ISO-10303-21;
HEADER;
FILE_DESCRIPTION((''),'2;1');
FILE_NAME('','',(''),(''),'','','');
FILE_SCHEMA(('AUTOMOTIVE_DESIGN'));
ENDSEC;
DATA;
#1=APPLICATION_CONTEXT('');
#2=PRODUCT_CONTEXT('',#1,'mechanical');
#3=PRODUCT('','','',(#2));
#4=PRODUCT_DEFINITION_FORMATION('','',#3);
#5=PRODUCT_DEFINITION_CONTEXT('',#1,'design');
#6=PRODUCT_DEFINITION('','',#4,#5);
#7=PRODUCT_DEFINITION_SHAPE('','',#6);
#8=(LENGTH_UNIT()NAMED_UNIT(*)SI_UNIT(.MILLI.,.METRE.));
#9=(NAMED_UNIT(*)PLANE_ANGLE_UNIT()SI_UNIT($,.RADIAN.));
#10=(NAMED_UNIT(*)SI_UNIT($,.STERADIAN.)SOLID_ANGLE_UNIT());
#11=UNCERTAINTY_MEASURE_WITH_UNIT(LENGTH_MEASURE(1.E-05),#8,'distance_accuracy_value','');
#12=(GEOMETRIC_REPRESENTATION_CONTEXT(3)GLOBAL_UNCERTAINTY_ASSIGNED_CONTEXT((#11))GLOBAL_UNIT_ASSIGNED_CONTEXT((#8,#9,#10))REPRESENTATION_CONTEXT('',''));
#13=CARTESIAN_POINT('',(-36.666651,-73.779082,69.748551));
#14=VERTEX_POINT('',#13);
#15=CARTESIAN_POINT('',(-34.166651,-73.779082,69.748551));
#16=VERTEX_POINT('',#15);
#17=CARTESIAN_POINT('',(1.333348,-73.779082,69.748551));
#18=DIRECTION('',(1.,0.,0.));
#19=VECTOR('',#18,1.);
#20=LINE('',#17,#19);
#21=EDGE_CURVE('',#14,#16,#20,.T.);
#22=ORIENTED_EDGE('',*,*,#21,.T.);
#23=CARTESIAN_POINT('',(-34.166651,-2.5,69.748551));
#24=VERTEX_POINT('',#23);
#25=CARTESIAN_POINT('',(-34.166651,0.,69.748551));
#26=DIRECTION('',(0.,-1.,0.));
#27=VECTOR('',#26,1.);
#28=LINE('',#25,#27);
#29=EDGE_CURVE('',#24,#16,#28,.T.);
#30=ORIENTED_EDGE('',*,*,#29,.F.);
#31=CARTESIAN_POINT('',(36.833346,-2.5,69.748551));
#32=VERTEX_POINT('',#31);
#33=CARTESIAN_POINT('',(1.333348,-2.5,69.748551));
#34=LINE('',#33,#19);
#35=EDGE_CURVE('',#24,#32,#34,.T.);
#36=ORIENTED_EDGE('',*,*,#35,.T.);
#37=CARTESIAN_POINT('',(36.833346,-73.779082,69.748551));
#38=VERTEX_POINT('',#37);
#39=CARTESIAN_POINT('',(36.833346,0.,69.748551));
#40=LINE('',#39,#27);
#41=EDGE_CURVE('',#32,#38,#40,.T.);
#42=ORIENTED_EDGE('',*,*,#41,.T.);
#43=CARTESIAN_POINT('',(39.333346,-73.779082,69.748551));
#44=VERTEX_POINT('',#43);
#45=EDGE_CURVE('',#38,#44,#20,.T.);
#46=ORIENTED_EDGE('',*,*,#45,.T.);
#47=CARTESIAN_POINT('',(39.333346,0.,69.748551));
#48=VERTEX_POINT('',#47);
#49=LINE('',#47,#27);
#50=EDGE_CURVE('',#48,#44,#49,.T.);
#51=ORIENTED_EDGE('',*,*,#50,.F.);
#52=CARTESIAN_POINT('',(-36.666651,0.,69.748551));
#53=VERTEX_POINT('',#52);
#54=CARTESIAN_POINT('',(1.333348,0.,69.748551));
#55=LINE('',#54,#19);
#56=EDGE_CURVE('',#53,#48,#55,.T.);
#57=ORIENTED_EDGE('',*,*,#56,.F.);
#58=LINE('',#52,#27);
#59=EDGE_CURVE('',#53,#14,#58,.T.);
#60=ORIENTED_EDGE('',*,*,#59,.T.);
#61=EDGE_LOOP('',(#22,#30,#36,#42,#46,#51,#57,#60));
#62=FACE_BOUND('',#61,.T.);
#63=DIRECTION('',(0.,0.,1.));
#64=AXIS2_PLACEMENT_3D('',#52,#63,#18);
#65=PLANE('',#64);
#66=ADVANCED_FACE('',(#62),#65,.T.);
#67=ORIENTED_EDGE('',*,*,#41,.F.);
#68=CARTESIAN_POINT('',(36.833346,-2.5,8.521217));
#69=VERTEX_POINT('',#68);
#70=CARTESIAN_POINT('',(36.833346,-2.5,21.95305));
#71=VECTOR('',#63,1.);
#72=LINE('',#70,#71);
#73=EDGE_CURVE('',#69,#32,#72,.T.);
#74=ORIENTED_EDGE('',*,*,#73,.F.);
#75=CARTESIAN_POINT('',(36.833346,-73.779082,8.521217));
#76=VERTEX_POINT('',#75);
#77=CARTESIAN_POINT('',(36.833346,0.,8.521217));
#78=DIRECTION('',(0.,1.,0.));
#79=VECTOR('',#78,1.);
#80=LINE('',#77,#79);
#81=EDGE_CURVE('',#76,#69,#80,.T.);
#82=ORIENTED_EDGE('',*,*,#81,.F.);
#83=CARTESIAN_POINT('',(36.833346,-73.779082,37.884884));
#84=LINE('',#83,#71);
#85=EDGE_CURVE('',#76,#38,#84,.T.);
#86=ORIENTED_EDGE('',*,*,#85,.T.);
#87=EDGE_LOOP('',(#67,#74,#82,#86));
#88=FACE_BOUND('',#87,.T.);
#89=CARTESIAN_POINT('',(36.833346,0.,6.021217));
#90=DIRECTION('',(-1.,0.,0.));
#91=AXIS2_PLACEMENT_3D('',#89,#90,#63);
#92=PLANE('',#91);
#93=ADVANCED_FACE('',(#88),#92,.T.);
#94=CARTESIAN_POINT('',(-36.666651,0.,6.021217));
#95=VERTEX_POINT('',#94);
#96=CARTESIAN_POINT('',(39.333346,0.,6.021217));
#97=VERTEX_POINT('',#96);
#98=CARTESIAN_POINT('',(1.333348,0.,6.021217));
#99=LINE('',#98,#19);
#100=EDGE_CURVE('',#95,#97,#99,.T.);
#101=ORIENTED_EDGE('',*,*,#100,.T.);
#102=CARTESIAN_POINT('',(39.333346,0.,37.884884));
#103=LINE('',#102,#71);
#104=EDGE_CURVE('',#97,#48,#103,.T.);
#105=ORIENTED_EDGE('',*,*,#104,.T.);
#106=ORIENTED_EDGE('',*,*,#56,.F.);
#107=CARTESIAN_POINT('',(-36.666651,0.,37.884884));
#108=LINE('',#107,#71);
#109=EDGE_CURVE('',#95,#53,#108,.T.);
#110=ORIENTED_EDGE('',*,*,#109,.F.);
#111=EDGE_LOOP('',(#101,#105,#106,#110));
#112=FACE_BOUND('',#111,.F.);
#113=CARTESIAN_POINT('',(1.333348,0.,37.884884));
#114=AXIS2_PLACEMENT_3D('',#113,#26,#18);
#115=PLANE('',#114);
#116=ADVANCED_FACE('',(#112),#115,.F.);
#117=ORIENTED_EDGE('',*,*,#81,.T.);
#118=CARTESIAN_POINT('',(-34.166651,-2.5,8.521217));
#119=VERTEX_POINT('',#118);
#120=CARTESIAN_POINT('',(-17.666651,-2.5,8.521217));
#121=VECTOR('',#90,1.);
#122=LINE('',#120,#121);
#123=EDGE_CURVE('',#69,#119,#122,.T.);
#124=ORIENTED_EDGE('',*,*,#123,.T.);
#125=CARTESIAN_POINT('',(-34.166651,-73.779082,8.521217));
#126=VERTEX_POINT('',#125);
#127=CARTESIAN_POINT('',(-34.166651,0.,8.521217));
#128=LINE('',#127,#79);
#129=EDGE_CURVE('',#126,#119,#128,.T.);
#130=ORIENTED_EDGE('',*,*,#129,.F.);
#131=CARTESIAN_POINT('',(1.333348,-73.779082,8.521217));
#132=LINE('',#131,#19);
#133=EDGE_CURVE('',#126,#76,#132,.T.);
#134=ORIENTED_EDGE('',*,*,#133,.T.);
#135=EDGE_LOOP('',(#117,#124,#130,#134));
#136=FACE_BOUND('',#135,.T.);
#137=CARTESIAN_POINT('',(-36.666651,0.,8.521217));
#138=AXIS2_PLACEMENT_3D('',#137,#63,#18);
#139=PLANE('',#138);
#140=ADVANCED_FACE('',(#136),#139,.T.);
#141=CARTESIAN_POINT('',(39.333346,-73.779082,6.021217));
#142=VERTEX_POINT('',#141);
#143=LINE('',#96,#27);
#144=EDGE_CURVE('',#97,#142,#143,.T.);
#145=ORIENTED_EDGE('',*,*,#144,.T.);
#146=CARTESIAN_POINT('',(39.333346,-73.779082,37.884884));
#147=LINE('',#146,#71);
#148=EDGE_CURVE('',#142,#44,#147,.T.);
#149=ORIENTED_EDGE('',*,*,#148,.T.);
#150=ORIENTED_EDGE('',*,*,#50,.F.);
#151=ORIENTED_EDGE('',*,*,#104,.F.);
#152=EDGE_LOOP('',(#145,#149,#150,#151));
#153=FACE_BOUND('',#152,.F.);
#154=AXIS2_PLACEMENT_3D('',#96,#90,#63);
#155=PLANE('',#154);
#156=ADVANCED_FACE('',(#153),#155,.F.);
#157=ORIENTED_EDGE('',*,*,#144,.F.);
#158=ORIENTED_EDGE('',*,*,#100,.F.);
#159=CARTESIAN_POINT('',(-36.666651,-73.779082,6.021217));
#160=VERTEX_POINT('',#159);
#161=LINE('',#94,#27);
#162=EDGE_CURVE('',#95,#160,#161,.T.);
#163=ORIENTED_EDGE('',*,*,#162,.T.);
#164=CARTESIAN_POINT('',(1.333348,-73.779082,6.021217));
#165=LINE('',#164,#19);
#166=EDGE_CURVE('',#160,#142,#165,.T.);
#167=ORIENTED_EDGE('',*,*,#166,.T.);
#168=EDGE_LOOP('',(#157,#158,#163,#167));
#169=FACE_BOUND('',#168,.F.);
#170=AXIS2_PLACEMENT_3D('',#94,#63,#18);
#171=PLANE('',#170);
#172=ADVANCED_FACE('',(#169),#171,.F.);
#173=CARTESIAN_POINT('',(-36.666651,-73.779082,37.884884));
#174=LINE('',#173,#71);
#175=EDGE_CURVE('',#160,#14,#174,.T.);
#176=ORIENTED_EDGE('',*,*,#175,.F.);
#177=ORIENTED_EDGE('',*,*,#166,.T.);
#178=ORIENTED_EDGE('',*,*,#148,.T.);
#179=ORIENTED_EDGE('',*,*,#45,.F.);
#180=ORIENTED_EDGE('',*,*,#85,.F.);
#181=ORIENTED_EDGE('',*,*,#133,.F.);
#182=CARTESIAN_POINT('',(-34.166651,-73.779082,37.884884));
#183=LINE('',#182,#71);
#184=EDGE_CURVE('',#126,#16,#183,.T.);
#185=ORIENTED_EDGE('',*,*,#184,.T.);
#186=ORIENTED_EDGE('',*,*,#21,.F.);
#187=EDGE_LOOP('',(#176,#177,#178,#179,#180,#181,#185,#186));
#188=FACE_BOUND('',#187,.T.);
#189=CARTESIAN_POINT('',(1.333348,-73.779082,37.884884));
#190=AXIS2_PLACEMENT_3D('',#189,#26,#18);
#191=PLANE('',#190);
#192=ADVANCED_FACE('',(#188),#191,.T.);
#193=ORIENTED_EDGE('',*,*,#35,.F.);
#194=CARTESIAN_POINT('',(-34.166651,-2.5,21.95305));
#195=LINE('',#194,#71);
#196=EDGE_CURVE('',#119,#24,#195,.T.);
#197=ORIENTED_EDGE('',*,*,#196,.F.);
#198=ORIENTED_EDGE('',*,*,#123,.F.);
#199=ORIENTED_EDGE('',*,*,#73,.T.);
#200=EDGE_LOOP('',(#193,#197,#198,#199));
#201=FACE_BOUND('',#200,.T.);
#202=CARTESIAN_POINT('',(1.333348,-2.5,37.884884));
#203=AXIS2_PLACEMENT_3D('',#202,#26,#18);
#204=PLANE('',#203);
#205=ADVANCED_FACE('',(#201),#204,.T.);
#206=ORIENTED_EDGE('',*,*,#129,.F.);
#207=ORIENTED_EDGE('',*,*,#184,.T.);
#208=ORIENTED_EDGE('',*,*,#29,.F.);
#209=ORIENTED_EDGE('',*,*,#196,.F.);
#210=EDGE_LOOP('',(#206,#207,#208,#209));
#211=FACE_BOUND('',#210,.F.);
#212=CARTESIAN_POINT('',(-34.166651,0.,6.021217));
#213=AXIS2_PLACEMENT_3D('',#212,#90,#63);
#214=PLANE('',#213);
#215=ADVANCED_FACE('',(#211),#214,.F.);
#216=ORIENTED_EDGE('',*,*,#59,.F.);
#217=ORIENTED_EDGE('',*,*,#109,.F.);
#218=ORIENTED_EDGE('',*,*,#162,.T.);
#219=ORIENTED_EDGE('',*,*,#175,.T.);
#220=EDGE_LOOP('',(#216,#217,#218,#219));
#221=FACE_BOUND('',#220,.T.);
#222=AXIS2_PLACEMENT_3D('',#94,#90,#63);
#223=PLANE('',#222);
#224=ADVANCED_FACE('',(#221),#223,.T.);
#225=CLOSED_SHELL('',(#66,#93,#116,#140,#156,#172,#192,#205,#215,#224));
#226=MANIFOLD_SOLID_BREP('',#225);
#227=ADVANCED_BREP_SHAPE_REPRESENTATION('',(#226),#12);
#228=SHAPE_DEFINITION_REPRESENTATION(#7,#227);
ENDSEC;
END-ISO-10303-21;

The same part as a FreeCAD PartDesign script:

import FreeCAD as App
import Part
import Sketcher
Q = App.Units.Quantity


def faces_at(feature, points):
    """Names of the faces that lie closest to the given points."""
    faces = feature.Shape.Faces
    near = lambda p: min(range(len(faces)), key=lambda i: faces[i].distToShape(Part.Vertex(*p))[0])
    return sorted({f"Face{near(p) + 1}" for p in points})

doc = App.newDocument("Part")
body = doc.addObject("PartDesign::Body", "Body")

# Sketch on XZ plane
sketch1 = body.newObject("Sketcher::SketchObject", "Sketch")
sketch1.AttachmentSupport = (doc.getObject("XZ_Plane"), [""])
sketch1.MapMode = "FlatFace"
sketch1.addGeometry(Part.LineSegment(App.Vector(-37, 70, 0), App.Vector(-37, 6, 0)), False)
sketch1.addGeometry(Part.LineSegment(App.Vector(-37, 6, 0), App.Vector(39, 6, 0)), False)
sketch1.addGeometry(Part.LineSegment(App.Vector(39, 6, 0), App.Vector(39, 70, 0)), False)
sketch1.addGeometry(Part.LineSegment(App.Vector(39, 70, 0), App.Vector(-37, 70, 0)), False)
sketch1.addConstraint(Sketcher.Constraint("Coincident", 0, 2, 1, 1))
sketch1.addConstraint(Sketcher.Constraint("Coincident", 1, 2, 2, 1))
sketch1.addConstraint(Sketcher.Constraint("Coincident", 2, 2, 3, 1))
sketch1.addConstraint(Sketcher.Constraint("Coincident", 3, 2, 0, 1))
sketch1.addConstraint(Sketcher.Constraint("Vertical", 0))
sketch1.addConstraint(Sketcher.Constraint("Horizontal", 1))
sketch1.addConstraint(Sketcher.Constraint("Vertical", 2))
sketch1.addConstraint(Sketcher.Constraint("Horizontal", 3))
sketch1.addConstraint(Sketcher.Constraint("DistanceX", 1, 1, 1, 2, Q("75.999997 mm")))
sketch1.addConstraint(Sketcher.Constraint("DistanceY", 0, 2, 0, 1, Q("63.727334 mm")))
sketch1.addConstraint(Sketcher.Constraint("DistanceX", 0, 2, -1, 1, Q("36.666651 mm")))
sketch1.addConstraint(Sketcher.Constraint("DistanceY", -1, 1, 2, 2, Q("69.748551 mm")))
pad1 = body.newObject("PartDesign::Pad", "Pad")
pad1.Profile = sketch1
pad1.Length = 73.779082
doc.recompute()

thickness = body.newObject("PartDesign::Thickness", "Thickness")
thickness.Base = (pad1, faces_at(pad1, [(1.333, -73.779, 37.885), (1.333, -36.89, 69.749)]))
thickness.Value = 2.5
thickness.Reversed = True
thickness.Join = "Arc"

doc.recompute()
